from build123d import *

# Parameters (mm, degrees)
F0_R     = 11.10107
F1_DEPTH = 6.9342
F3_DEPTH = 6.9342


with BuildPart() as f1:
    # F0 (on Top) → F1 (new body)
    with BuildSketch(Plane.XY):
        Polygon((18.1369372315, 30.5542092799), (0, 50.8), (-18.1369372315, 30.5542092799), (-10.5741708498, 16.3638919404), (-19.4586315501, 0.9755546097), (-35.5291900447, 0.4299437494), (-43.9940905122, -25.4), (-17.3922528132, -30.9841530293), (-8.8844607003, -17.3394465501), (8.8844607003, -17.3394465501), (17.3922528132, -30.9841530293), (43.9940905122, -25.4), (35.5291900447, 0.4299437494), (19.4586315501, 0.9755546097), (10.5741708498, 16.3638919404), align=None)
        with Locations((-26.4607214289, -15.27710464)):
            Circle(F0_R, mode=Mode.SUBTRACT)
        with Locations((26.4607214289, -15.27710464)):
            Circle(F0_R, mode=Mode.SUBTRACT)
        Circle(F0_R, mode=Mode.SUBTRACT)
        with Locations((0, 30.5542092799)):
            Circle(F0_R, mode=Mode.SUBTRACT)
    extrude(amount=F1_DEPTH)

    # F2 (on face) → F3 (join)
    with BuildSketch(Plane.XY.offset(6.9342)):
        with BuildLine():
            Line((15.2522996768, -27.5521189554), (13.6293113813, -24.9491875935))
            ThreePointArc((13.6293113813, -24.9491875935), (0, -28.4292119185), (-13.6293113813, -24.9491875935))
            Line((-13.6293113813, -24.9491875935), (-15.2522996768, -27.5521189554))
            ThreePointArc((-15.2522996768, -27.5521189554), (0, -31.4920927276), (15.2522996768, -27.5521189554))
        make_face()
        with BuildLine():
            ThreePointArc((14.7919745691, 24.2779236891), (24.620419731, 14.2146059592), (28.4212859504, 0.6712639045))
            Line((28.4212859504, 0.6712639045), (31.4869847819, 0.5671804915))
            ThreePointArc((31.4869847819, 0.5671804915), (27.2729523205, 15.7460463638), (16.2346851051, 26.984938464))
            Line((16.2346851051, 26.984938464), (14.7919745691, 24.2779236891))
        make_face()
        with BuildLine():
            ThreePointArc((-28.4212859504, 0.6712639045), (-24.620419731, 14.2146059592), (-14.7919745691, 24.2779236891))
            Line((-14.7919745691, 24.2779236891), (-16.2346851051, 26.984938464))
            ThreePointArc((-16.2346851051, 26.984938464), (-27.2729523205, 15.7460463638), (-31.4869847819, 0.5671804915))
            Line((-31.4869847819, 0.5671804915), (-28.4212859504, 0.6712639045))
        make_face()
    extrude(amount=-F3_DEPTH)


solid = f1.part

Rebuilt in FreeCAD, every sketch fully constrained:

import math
import FreeCAD as App
import Part
import Sketcher
from FreeCAD import Vector
Q = App.Units.Quantity

doc = App.newDocument("Part")
body = doc.addObject("PartDesign::Body", "Body")

# Sketch on XY plane
sketch1 = doc.addObject("Sketcher::SketchObject", "Sketch")
body.addObject(sketch1)
sketch1.AttachmentSupport = (doc.XY_Plane, [""])
sketch1.MapMode = "FlatFace"
sketch1.addGeometry(Part.LineSegment(Vector(18, 31, 0), Vector(0, 51, 0)), False)
sketch1.addGeometry(Part.LineSegment(Vector(0, 51, 0), Vector(-18, 31, 0)), False)
sketch1.addGeometry(Part.LineSegment(Vector(-18, 31, 0), Vector(-11, 16, 0)), False)
sketch1.addGeometry(Part.LineSegment(Vector(-11, 16, 0), Vector(-19, 1, 0)), False)
sketch1.addGeometry(Part.LineSegment(Vector(-19, 1, 0), Vector(-36, 0, 0)), False)
sketch1.addGeometry(Part.LineSegment(Vector(-36, 0, 0), Vector(-44, -25, 0)), False)
sketch1.addGeometry(Part.LineSegment(Vector(-44, -25, 0), Vector(-17, -31, 0)), False)
sketch1.addGeometry(Part.LineSegment(Vector(-17, -31, 0), Vector(-9, -17, 0)), False)
sketch1.addGeometry(Part.LineSegment(Vector(-9, -17, 0), Vector(9, -17, 0)), False)
sketch1.addGeometry(Part.LineSegment(Vector(9, -17, 0), Vector(17, -31, 0)), False)
sketch1.addGeometry(Part.LineSegment(Vector(17, -31, 0), Vector(44, -25, 0)), False)
sketch1.addGeometry(Part.LineSegment(Vector(44, -25, 0), Vector(36, 0, 0)), False)
sketch1.addGeometry(Part.LineSegment(Vector(36, 0, 0), Vector(19, 1, 0)), False)
sketch1.addGeometry(Part.LineSegment(Vector(19, 1, 0), Vector(11, 16, 0)), False)
sketch1.addGeometry(Part.LineSegment(Vector(11, 16, 0), Vector(18, 31, 0)), False)
sketch1.addGeometry(Part.Circle(Vector(-26, -15, 0), Vector(0, 0, 1), 11), False)
sketch1.addGeometry(Part.Circle(Vector(26, -15, 0), Vector(0, 0, 1), 11), False)
sketch1.addGeometry(Part.Circle(Vector(0, 0, 0), Vector(0, 0, 1), 11), False)
sketch1.addGeometry(Part.Circle(Vector(0, 31, 0), Vector(0, 0, 1), 11), False)
sketch1.addConstraint(Sketcher.Constraint("Coincident", 0, 2, 1, 1))
sketch1.addConstraint(Sketcher.Constraint("Coincident", 1, 2, 2, 1))
sketch1.addConstraint(Sketcher.Constraint("Coincident", 2, 2, 3, 1))
sketch1.addConstraint(Sketcher.Constraint("Coincident", 3, 2, 4, 1))
sketch1.addConstraint(Sketcher.Constraint("Coincident", 4, 2, 5, 1))
sketch1.addConstraint(Sketcher.Constraint("Coincident", 5, 2, 6, 1))
sketch1.addConstraint(Sketcher.Constraint("Coincident", 6, 2, 7, 1))
sketch1.addConstraint(Sketcher.Constraint("Coincident", 7, 2, 8, 1))
sketch1.addConstraint(Sketcher.Constraint("Coincident", 8, 2, 9, 1))
sketch1.addConstraint(Sketcher.Constraint("Coincident", 9, 2, 10, 1))
sketch1.addConstraint(Sketcher.Constraint("Coincident", 10, 2, 11, 1))
sketch1.addConstraint(Sketcher.Constraint("Coincident", 11, 2, 12, 1))
sketch1.addConstraint(Sketcher.Constraint("Coincident", 12, 2, 13, 1))
sketch1.addConstraint(Sketcher.Constraint("Coincident", 13, 2, 14, 1))
sketch1.addConstraint(Sketcher.Constraint("Coincident", 14, 2, 0, 1))
sketch1.addConstraint(Sketcher.Constraint("Horizontal", 8))
sketch1.addConstraint(Sketcher.Constraint("Coincident", 17, 3, -1, 1))
sketch1.addConstraint(Sketcher.Constraint("Equal", 15, 16))
sketch1.addConstraint(Sketcher.Constraint("Equal", 16, 17))
sketch1.addConstraint(Sketcher.Constraint("Equal", 17, 18))
sketch1.addConstraint(Sketcher.Constraint("Symmetric", 15, 3, 16, 3, -2))
sketch1.addConstraint(Sketcher.Constraint("Symmetric", 6, 2, 9, 2, -2))
sketch1.addConstraint(Sketcher.Constraint("Symmetric", 5, 2, 10, 2, -2))
sketch1.addConstraint(Sketcher.Constraint("Symmetric", 4, 2, 11, 2, -2))
sketch1.addConstraint(Sketcher.Constraint("Symmetric", 3, 2, 12, 2, -2))
sketch1.addConstraint(Sketcher.Constraint("Symmetric", 2, 2, 13, 2, -2))
sketch1.addConstraint(Sketcher.Constraint("Symmetric", 1, 2, 14, 2, -2))
sketch1.addConstraint(Sketcher.Constraint("PointOnObject", 18, 3, -2))
sketch1.addConstraint(Sketcher.Constraint("PointOnObject", 0, 2, -2))
sketch1.addConstraint(Sketcher.Constraint("Horizontal", 18, 3, 1, 2))
sketch1.addConstraint(Sketcher.Constraint("Equal", 2, 4))
sketch1.addConstraint(Sketcher.Constraint("Equal", 1, 5))
sketch1.addConstraint(Sketcher.Constraint("Equal", 5, 6))
sketch1.addConstraint(Sketcher.Constraint("Equal", 4, 7))
sketch1.addConstraint(Sketcher.Constraint("Equal", 7, 9))
sketch1.addConstraint(Sketcher.Constraint("DistanceY", -1, 1, 0, 2, Q("2 in")))
sketch1.addConstraint(Sketcher.Constraint("DistanceY", 5, 2, -1, 1, Q("1 in")))
sketch1.addConstraint(Sketcher.Constraint("Angle", 3, Q("-120 deg")))
sketch1.addConstraint(Sketcher.Constraint("Diameter", 15, Q("0.8741 in")))
sketch1.addConstraint(Sketcher.Constraint("DistanceX", 8, 1, 8, 2, 17.768921))
sketch1.addConstraint(Sketcher.Constraint("DistanceX", 5, 2, 4, 2, 8.4649))
sketch1.addConstraint(Sketcher.Constraint("DistanceY", 7, 2, 3, 2, 18.315001))
sketch1.addConstraint(Sketcher.Constraint("Distance", 0, 27.181621))
sketch1.addConstraint(Sketcher.Constraint("Distance", 3, 17.768921))
sketch1.addConstraint(Sketcher.Constraint("DistanceX", 15, 3, -1, 1, 26.460721))
sketch1.addConstraint(Sketcher.Constraint("DistanceY", -1, 1, 18, 3, 30.554209))
sketch1.addConstraint(Sketcher.Constraint("DistanceX", 2, 2, -1, 1, 10.574171))
sketch1.addConstraint(Sketcher.Constraint("DistanceY", -1, 1, 2, 2, 16.363892))
sketch1.addConstraint(Sketcher.Constraint("DistanceY", 15, 3, 3, 2, 16.252659))
pad1 = doc.addObject("PartDesign::Pad", "Pad")
body.addObject(pad1)
pad1.Profile = sketch1
pad1.Length = Q("0.273 in")

# Sketch on XY plane
sketch2 = doc.addObject("Sketcher::SketchObject", "Sketch001")
body.addObject(sketch2)
sketch2.AttachmentSupport = (doc.XY_Plane, [""])
sketch2.MapMode = "FlatFace"
sketch2.AttachmentOffset = App.Placement(Vector(0, 0, 0.273 * 25.4), App.Rotation())
sketch2.addGeometry(Part.LineSegment(Vector(15.3, -27.6, 0), Vector(13.6, -24.9, 0)), False)
sketch2.addGeometry(Part.ArcOfCircle(Part.Circle(Vector(0, 0, 0), Vector(0, 0, 1), 28.4), math.radians(-119), math.radians(-61)), False)
sketch2.addGeometry(Part.LineSegment(Vector(-13.6, -24.9, 0), Vector(-15.3, -27.6, 0)), False)
sketch2.addGeometry(Part.ArcOfCircle(Part.Circle(Vector(0, 0, 0), Vector(0, 0, 1), 31.5), math.radians(-119), math.radians(-61)), False)
sketch2.addGeometry(Part.ArcOfCircle(Part.Circle(Vector(0, 0, 0), Vector(0, 0, 1), 28.4), math.radians(1), math.radians(59)), False)
sketch2.addGeometry(Part.LineSegment(Vector(28.4, 0.7, 0), Vector(31.5, 0.6, 0)), False)
sketch2.addGeometry(Part.ArcOfCircle(Part.Circle(Vector(0, 0, 0), Vector(0, 0, 1), 31.5), math.radians(1), math.radians(59)), False)
sketch2.addGeometry(Part.LineSegment(Vector(16.2, 27, 0), Vector(14.8, 24.3, 0)), False)
sketch2.addGeometry(Part.ArcOfCircle(Part.Circle(Vector(0, 0, 0), Vector(0, 0, 1), 28.4), math.radians(121), math.radians(179)), False)
sketch2.addGeometry(Part.LineSegment(Vector(-14.8, 24.3, 0), Vector(-16.2, 27, 0)), False)
sketch2.addGeometry(Part.ArcOfCircle(Part.Circle(Vector(0, 0, 0), Vector(0, 0, 1), 31.5), math.radians(121), math.radians(179)), False)
sketch2.addGeometry(Part.LineSegment(Vector(-31.5, 0.6, 0), Vector(-28.4, 0.7, 0)), False)
sketch2.addConstraint(Sketcher.Constraint("Coincident", 0, 2, 1, 2))
sketch2.addConstraint(Sketcher.Constraint("Coincident", 1, 1, 2, 1))
sketch2.addConstraint(Sketcher.Constraint("Coincident", 2, 2, 3, 1))
sketch2.addConstraint(Sketcher.Constraint("Coincident", 3, 2, 0, 1))
sketch2.addConstraint(Sketcher.Constraint("Coincident", 4, 1, 5, 1))
sketch2.addConstraint(Sketcher.Constraint("Coincident", 5, 2, 6, 1))
sketch2.addConstraint(Sketcher.Constraint("Coincident", 6, 2, 7, 1))
sketch2.addConstraint(Sketcher.Constraint("Coincident", 7, 2, 4, 2))
sketch2.addConstraint(Sketcher.Constraint("Coincident", 8, 1, 9, 1))
sketch2.addConstraint(Sketcher.Constraint("Coincident", 9, 2, 10, 1))
sketch2.addConstraint(Sketcher.Constraint("Coincident", 10, 2, 11, 1))
sketch2.addConstraint(Sketcher.Constraint("Coincident", 11, 2, 8, 2))
sketch2.addConstraint(Sketcher.Constraint("Coincident", 1, 3, -1, 1))
sketch2.addConstraint(Sketcher.Constraint("Coincident", 3, 3, -1, 1))
sketch2.addConstraint(Sketcher.Constraint("Coincident", 4, 3, -1, 1))
sketch2.addConstraint(Sketcher.Constraint("Coincident", 6, 3, -1, 1))
sketch2.addConstraint(Sketcher.Constraint("Coincident", 8, 3, -1, 1))
sketch2.addConstraint(Sketcher.Constraint("Coincident", 10, 3, -1, 1))
sketch2.addConstraint(Sketcher.Constraint("Equal", 1, 4))
sketch2.addConstraint(Sketcher.Constraint("Equal", 3, 6))
sketch2.addConstraint(Sketcher.Constraint("Equal", 4, 8))
sketch2.addConstraint(Sketcher.Constraint("Equal", 6, 10))
sketch2.addConstraint(Sketcher.Constraint("Horizontal", 0, 2, 1, 1))
sketch2.addConstraint(Sketcher.Constraint("Horizontal", 2, 2, 3, 2))
sketch2.addConstraint(Sketcher.Constraint("Horizontal", 7, 2, 8, 1))
sketch2.addConstraint(Sketcher.Constraint("Horizontal", 6, 2, 9, 2))
sketch2.addConstraint(Sketcher.Constraint("Horizontal", 5, 2, 10, 2))
sketch2.addConstraint(Sketcher.Constraint("Horizontal", 4, 1, 11, 2))
sketch2.addConstraint(Sketcher.Constraint("Equal", 2, 5))
sketch2.addConstraint(Sketcher.Constraint("Equal", 5, 7))
sketch2.addConstraint(Sketcher.Constraint("Radius", 1, 28.429212))
sketch2.addConstraint(Sketcher.Constraint("Radius", 3, 31.492093))
sketch2.addConstraint(Sketcher.Constraint("DistanceX", 2, 2, -1, 1, 15.2523))
sketch2.addConstraint(Sketcher.Constraint("DistanceX", 4, 1, 5, 2, 3.065699))
sketch2.addConstraint(Sketcher.Constraint("DistanceX", 6, 2, 4, 1, 12.186601))
sketch2.addConstraint(Sketcher.Constraint("DistanceX", -1, 1, 0, 2, 13.629311))
pad2 = doc.addObject("PartDesign::Pad", "Pad001")
body.addObject(pad2)
pad2.Profile = sketch2
pad2.Length = Q("0.273 in")
pad2.Reversed = True

doc.recompute()
